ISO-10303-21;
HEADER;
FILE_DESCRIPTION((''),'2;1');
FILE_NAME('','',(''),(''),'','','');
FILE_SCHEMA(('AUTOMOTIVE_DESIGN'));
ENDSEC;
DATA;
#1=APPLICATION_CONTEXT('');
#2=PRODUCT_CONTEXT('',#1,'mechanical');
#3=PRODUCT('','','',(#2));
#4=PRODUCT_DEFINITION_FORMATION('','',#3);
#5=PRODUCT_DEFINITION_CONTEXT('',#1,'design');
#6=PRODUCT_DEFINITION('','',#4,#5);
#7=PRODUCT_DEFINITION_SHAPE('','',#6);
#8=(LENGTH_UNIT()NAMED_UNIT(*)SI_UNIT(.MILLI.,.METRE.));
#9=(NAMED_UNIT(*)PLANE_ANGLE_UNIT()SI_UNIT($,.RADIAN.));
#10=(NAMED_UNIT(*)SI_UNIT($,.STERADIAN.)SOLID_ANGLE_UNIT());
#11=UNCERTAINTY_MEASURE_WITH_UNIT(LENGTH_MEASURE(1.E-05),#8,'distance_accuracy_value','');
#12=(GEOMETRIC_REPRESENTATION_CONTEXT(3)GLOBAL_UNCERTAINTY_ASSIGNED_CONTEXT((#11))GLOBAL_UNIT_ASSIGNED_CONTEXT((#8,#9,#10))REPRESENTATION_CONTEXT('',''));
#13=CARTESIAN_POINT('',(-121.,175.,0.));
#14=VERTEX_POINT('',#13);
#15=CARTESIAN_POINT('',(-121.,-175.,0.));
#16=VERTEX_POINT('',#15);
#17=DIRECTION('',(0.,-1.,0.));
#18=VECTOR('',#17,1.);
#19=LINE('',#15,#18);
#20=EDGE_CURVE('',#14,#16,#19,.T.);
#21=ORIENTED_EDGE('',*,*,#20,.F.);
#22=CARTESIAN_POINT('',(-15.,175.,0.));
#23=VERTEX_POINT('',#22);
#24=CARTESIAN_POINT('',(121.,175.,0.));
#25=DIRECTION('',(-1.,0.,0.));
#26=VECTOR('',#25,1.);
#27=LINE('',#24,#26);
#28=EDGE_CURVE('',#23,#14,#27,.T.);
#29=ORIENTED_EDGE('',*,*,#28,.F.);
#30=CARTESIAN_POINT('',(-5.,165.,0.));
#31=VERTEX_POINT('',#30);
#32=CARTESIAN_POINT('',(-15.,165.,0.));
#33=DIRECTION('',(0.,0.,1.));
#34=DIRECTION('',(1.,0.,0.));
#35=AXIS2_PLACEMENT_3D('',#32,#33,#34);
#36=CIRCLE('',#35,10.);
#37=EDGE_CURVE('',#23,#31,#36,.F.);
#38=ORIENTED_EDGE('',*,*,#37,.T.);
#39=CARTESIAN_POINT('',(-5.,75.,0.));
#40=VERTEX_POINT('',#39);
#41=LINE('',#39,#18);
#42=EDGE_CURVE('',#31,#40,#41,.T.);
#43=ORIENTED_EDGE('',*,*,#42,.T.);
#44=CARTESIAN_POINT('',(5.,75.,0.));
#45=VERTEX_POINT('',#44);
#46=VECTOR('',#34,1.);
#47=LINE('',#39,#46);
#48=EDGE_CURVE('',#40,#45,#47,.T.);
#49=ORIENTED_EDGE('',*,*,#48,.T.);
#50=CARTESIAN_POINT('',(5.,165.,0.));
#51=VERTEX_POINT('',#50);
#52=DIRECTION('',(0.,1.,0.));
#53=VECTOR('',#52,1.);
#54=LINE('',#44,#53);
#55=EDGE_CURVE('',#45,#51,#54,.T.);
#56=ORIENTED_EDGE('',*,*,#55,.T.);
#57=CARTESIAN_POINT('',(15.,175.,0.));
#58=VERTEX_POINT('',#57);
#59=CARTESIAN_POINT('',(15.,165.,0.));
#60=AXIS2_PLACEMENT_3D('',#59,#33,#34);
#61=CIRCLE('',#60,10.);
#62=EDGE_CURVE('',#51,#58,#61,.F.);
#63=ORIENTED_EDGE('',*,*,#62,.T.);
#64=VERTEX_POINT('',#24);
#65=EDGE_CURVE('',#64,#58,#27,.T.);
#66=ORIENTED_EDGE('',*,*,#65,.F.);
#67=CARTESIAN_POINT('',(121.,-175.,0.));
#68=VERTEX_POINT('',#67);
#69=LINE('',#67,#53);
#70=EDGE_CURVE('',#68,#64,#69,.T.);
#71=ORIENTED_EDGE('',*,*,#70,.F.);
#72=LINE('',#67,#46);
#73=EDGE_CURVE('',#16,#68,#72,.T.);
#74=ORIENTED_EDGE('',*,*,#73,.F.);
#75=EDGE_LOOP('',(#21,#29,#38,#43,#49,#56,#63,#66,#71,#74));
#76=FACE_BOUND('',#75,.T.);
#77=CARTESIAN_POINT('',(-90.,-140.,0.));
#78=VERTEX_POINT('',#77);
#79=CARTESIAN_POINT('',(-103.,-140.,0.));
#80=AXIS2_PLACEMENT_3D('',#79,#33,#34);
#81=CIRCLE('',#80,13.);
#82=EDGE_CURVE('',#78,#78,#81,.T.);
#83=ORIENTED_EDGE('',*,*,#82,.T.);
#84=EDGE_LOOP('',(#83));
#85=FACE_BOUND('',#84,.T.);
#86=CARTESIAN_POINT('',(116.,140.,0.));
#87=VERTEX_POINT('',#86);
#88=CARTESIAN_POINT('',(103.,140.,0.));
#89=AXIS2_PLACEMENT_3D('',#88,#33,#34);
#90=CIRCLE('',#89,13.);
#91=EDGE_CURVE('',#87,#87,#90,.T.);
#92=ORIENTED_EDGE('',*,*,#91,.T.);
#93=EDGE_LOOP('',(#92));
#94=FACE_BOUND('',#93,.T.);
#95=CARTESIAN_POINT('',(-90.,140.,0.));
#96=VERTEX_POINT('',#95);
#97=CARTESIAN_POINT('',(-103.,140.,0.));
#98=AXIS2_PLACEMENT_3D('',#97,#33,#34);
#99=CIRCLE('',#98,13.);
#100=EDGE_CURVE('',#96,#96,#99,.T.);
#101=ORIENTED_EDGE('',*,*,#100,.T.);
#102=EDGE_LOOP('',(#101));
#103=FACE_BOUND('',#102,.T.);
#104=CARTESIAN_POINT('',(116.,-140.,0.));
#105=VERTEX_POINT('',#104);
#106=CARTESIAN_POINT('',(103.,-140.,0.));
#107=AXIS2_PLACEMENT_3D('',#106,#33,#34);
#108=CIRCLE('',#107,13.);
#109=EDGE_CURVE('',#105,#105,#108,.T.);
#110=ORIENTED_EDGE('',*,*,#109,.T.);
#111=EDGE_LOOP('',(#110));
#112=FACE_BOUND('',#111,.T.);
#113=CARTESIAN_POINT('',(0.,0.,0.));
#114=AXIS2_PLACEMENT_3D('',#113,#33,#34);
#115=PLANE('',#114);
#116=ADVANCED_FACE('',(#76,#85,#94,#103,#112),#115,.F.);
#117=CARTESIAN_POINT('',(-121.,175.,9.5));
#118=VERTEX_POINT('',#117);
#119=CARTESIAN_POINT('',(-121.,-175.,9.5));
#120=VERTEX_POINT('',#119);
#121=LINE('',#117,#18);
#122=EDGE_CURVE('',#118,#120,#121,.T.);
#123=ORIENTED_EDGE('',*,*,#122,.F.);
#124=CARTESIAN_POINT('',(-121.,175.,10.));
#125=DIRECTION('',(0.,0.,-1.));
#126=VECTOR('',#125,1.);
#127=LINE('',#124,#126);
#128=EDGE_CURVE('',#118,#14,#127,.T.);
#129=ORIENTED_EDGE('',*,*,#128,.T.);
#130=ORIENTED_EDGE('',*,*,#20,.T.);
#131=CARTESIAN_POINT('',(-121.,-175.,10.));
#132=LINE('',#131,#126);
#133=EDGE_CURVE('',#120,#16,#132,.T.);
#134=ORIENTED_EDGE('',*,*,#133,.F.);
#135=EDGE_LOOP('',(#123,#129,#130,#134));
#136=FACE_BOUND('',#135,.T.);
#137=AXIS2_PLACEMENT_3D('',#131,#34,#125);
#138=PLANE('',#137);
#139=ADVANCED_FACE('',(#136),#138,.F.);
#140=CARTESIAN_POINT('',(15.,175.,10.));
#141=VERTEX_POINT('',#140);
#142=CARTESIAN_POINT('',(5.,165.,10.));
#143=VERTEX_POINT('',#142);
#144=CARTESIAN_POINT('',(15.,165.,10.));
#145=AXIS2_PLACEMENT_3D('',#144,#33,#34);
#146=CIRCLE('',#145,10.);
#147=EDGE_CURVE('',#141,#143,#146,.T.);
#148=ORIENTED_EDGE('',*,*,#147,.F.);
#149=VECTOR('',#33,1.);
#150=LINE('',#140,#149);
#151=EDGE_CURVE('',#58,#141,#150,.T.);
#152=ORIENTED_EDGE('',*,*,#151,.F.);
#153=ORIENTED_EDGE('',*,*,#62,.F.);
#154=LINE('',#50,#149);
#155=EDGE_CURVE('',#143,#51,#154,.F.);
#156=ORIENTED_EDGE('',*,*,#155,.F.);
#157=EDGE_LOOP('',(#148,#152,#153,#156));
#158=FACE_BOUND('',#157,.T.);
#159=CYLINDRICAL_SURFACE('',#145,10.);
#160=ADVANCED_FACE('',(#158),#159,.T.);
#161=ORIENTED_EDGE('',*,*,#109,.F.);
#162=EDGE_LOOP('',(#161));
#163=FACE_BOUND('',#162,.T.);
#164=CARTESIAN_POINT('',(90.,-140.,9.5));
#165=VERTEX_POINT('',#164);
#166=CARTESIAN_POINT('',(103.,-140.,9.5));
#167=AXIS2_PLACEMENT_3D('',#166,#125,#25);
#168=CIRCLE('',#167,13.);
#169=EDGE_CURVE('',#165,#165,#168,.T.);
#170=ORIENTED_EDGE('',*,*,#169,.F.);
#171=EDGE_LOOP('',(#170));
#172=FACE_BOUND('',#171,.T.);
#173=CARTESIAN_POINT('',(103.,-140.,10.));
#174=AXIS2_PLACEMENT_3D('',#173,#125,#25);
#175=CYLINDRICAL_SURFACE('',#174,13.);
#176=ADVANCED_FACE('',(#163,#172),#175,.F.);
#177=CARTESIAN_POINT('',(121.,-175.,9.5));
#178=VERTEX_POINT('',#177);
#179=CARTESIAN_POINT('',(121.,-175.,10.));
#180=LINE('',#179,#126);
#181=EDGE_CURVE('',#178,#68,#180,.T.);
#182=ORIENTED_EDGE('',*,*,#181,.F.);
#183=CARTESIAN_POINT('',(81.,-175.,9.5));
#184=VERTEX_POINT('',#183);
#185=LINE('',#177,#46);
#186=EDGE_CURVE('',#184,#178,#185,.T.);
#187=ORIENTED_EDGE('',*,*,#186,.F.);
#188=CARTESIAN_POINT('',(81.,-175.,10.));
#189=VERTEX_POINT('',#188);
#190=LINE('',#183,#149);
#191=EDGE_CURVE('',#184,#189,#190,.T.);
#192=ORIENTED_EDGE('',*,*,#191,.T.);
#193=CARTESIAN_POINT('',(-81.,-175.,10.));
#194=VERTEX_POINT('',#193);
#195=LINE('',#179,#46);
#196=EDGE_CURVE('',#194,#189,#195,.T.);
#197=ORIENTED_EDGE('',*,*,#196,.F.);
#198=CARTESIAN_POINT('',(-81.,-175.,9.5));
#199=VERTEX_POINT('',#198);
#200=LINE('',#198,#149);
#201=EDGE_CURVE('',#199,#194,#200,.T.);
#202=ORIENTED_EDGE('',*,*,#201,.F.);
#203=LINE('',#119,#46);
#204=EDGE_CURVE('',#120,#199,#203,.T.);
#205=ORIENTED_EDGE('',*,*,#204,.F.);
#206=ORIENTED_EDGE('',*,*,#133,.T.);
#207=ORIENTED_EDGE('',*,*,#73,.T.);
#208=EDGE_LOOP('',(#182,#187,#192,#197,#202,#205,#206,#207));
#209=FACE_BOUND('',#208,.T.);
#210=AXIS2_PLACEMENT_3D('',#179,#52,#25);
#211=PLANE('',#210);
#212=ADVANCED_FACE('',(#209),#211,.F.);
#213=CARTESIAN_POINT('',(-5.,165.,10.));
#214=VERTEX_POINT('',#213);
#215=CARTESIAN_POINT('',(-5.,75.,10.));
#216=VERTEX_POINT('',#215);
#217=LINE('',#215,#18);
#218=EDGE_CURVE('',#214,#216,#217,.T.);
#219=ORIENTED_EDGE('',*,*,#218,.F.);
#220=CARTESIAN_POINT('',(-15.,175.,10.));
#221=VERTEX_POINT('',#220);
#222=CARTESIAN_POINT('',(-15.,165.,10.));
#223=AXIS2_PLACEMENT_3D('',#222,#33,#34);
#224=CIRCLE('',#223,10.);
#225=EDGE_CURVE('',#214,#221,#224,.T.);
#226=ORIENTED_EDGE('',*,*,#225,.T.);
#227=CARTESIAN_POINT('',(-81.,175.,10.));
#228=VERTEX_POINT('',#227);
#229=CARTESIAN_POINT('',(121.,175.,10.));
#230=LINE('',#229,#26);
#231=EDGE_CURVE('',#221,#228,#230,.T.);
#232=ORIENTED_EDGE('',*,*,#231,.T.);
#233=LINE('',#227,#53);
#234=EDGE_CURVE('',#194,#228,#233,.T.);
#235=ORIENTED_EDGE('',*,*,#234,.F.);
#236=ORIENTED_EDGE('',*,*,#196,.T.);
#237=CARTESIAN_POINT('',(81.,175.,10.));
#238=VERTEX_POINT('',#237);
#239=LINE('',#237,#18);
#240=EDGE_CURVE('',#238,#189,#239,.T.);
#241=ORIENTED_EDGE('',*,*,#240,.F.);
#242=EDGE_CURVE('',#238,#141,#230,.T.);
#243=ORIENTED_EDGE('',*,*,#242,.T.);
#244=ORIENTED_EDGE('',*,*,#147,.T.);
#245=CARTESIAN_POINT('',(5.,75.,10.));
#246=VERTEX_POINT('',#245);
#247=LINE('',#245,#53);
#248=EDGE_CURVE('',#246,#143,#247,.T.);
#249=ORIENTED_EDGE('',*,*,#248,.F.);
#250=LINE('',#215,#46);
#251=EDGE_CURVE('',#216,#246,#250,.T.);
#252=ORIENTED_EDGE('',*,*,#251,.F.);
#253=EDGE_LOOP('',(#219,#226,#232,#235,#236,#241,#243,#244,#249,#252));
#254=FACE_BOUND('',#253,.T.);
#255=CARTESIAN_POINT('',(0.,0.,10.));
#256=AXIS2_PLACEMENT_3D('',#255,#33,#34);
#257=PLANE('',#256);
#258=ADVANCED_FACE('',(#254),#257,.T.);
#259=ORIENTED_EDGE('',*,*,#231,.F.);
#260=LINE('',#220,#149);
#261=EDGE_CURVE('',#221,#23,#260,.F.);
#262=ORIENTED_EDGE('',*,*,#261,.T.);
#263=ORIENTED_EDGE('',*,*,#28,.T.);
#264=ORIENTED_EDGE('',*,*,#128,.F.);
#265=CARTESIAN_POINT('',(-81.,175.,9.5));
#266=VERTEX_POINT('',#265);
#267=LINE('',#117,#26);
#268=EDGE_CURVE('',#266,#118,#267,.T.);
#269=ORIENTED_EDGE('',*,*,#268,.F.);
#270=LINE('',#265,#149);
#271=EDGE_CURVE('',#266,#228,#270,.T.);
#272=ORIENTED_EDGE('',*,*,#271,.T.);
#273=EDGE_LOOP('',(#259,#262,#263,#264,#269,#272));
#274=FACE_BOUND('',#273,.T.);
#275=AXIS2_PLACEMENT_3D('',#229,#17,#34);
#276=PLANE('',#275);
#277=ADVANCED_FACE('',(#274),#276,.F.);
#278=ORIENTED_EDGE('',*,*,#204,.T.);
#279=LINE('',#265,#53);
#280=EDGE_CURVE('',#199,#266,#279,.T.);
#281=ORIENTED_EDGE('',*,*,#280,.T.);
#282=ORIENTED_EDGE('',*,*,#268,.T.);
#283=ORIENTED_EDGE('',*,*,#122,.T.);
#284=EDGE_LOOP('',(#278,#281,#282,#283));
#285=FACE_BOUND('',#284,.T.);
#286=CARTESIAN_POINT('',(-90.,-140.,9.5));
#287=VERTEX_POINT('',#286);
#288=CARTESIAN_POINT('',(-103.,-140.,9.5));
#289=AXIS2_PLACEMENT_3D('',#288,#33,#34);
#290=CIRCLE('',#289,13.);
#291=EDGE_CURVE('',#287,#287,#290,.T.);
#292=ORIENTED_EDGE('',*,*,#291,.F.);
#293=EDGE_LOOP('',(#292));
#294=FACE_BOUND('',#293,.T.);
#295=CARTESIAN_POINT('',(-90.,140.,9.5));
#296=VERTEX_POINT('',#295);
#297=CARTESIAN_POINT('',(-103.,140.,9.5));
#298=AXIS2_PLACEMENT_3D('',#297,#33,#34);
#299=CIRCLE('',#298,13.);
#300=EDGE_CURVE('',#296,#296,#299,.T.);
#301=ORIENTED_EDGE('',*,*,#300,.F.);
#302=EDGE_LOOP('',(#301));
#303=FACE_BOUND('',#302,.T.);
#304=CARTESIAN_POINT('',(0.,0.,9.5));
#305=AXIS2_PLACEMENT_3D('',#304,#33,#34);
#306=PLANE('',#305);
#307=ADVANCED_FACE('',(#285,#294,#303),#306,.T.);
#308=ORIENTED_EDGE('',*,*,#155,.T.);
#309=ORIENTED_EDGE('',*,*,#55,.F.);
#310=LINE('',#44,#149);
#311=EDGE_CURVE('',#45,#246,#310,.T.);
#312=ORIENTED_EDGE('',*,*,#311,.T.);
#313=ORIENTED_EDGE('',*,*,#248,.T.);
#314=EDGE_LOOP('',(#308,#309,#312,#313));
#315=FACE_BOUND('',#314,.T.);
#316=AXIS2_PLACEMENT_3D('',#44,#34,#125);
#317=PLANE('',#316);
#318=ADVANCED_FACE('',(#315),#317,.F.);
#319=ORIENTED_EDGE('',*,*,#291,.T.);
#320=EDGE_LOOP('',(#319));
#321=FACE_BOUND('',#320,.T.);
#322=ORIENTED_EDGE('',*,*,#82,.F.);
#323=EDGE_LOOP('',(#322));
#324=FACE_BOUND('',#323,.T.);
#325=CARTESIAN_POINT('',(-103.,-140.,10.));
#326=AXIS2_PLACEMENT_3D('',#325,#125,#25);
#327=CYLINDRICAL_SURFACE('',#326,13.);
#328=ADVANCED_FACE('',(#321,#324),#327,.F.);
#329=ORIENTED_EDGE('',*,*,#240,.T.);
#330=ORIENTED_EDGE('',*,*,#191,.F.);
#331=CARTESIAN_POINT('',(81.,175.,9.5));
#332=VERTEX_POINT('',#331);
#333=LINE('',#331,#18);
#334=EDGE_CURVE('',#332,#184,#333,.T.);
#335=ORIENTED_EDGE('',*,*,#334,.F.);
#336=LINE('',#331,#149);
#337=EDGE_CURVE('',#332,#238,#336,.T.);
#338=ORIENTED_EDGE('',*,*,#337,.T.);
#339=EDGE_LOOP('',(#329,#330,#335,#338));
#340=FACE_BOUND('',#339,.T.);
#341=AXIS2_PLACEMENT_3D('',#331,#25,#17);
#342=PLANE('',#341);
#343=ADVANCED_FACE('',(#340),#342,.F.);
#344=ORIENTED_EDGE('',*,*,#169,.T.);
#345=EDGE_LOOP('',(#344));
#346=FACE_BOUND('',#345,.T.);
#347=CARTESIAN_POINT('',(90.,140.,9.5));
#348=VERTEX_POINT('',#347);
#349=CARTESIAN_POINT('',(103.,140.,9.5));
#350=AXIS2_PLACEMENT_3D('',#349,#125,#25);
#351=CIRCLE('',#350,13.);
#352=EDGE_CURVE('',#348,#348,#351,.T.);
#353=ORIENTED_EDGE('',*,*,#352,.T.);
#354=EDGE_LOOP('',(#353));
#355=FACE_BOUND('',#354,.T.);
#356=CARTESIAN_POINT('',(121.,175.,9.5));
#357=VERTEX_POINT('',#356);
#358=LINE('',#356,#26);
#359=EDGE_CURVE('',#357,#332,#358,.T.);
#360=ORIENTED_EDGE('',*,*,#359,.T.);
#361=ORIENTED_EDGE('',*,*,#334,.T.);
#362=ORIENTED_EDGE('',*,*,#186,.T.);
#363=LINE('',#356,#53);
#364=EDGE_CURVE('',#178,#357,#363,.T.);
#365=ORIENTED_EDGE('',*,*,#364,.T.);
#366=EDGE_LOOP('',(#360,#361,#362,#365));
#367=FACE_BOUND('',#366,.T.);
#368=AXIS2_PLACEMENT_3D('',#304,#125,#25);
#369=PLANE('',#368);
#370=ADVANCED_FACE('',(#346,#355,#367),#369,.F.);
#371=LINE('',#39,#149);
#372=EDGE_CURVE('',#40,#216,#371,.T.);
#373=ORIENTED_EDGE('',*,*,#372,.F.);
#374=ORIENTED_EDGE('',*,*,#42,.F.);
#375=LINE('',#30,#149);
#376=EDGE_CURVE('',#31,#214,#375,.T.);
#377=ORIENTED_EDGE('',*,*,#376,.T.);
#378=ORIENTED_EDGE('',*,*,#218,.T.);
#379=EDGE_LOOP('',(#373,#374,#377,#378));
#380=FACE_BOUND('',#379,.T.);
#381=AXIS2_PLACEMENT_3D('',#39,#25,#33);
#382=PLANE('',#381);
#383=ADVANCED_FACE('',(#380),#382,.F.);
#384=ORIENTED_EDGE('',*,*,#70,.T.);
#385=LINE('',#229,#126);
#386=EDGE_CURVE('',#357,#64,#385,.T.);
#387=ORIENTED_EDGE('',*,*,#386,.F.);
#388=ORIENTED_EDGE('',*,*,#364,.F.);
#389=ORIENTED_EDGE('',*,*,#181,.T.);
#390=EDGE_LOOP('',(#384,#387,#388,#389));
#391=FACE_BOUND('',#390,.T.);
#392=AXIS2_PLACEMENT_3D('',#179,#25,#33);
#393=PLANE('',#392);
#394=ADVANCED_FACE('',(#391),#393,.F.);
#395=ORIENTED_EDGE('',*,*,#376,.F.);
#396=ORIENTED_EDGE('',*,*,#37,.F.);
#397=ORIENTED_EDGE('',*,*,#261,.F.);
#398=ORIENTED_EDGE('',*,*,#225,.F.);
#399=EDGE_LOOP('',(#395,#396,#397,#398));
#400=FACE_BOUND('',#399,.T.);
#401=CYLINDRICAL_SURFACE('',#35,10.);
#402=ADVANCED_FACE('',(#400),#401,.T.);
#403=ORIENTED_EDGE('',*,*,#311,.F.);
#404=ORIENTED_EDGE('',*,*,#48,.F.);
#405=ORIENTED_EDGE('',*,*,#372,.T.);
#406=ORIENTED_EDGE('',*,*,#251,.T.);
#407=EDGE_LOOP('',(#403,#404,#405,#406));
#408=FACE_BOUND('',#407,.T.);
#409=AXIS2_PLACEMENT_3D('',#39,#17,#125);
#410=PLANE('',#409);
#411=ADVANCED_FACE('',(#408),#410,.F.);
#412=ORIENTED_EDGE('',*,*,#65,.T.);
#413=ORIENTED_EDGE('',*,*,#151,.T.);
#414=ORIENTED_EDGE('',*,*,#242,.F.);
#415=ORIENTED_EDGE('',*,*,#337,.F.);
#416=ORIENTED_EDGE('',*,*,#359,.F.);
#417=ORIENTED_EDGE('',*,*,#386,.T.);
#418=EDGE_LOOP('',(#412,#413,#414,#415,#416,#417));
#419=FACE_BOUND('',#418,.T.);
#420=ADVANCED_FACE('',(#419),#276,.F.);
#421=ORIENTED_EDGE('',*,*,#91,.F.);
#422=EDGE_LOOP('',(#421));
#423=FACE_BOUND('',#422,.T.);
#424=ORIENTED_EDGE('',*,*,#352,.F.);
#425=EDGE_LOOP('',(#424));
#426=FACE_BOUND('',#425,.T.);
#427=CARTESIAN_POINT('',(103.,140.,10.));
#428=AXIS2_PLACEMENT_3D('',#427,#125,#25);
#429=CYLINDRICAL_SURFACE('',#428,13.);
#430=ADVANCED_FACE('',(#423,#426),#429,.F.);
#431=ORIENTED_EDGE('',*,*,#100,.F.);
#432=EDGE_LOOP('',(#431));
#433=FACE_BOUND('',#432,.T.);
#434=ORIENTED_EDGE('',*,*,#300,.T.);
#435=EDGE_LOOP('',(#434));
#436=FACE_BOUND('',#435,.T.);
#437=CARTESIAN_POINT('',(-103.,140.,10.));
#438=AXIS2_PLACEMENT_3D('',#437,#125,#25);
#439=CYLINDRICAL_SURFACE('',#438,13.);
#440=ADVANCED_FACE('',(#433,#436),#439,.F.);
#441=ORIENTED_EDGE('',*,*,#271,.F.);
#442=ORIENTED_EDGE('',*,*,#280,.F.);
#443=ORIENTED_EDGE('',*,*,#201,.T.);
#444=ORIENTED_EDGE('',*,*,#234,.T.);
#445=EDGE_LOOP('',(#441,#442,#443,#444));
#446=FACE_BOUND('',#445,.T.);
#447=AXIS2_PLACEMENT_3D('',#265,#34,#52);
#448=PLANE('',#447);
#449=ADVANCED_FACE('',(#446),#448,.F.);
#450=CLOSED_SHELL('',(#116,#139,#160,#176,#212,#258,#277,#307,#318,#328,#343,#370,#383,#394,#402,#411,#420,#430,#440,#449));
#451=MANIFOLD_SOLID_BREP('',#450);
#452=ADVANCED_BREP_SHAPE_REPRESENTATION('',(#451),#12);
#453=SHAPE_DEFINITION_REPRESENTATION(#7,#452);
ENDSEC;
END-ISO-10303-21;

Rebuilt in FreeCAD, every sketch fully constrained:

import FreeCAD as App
import Part
import Sketcher

V = App.Vector


def edges_at(feature, points):
    """Names of the edges that pass closest to the given points."""
    edges = feature.Shape.Edges
    near = lambda p: min(range(len(edges)), key=lambda i: edges[i].distToShape(Part.Vertex(*p))[0])
    return sorted({f"Edge{near(p) + 1}" for p in points})


def add_polygon(sketch, points):
    """Adds a closed chain of lines whose ends are joined by coincident constraints."""
    first, n = sketch.GeometryCount, len(points)
    for a, b in zip(points, points[1:] + points[:1]):
        sketch.addGeometry(Part.LineSegment(App.Vector(*a, 0), App.Vector(*b, 0)), False)
    for i in range(n):
        sketch.addConstraint(Sketcher.Constraint("Coincident", first + i, 2, first + (i + 1) % n, 1))

doc = App.newDocument("Part")
body = doc.addObject("PartDesign::Body", "Body")

sketch1 = body.newObject("Sketcher::SketchObject", "Sketch")
sketch1.AttachmentSupport = (doc.getObject("XY_Plane"), [""])
sketch1.MapMode = "FlatFace"
add_polygon(sketch1, [(-121, 175), (-121, -175), (121, -175), (121, 175)])
sketch1.addGeometry(Part.Circle(V(-103, -140, 0), V(0, 0, 1), 13), False)
sketch1.addGeometry(Part.Circle(V(103, -140, 0), V(0, 0, 1), 13), False)
sketch1.addGeometry(Part.Circle(V(-103, 140, 0), V(0, 0, 1), 13), False)
sketch1.addGeometry(Part.Circle(V(103, 140, 0), V(0, 0, 1), 13), False)
sketch1.addConstraint([
    Sketcher.Constraint("Vertical", 0),
    Sketcher.Constraint("Horizontal", 1),
    Sketcher.Constraint("Vertical", 2),
    Sketcher.Constraint("Horizontal", 3),
    Sketcher.Constraint("Equal", 4, 5),
    Sketcher.Constraint("Equal", 5, 6),
    Sketcher.Constraint("Equal", 6, 7),
    Sketcher.Constraint("Symmetric", 5, 3, 6, 3, -1, 1),
    Sketcher.Constraint("Symmetric", 4, 3, 7, 3, -1, 1),
    Sketcher.Constraint("Symmetric", 0, 2, 2, 2, -1, 1),
    Sketcher.Constraint("Symmetric", 4, 3, 5, 3, -2),
    Sketcher.Constraint("Diameter", 4, 26.0),
    Sketcher.Constraint("DistanceX", 1, 1, 1, 2, 242.0),
    Sketcher.Constraint("DistanceY", 0, 2, 0, 1, 350.0),
    Sketcher.Constraint("DistanceX", 4, 3, -1, 1, 103.0),
    Sketcher.Constraint("DistanceY", 4, 3, -1, 1, 140.0),
])
pad1 = body.newObject("PartDesign::Pad", "Pad")
pad1.Profile = sketch1
pad1.Length = 10

sketch2 = body.newObject("Sketcher::SketchObject", "Sketch001")
sketch2.AttachmentSupport = (doc.getObject("XY_Plane"), [""])
sketch2.MapMode = "FlatFace"
sketch2.AttachmentOffset = App.Placement(V(0, 0, 10), App.Rotation())
add_polygon(sketch2, [(-121, 175), (-121, -175), (-81, -175), (-81, 175)])
add_polygon(sketch2, [(81, 175), (81, -175), (121, -175), (121, 175)])
sketch2.addConstraint([
    Sketcher.Constraint("Vertical", 0),
    Sketcher.Constraint("Horizontal", 1),
    Sketcher.Constraint("Vertical", 2),
    Sketcher.Constraint("Horizontal", 3),
    Sketcher.Constraint("Vertical", 4),
    Sketcher.Constraint("Horizontal", 5),
    Sketcher.Constraint("Vertical", 6),
    Sketcher.Constraint("Horizontal", 7),
    Sketcher.Constraint("Symmetric", 2, 2, 4, 2, -1, 1),
    Sketcher.Constraint("Symmetric", 0, 2, 6, 2, -1, 1),
    Sketcher.Constraint("Horizontal", 1, 2, 4, 2),
    Sketcher.Constraint("DistanceX", 1, 1, 1, 2, 40.0),
    Sketcher.Constraint("DistanceY", 0, 2, 0, 1, 350.0),
    Sketcher.Constraint("DistanceX", 0, 2, -1, 1, 121.0),
])
pocket1 = body.newObject("PartDesign::Pocket", "Pocket")
pocket1.Profile = sketch2
pocket1.Length = 0.5

sketch3 = body.newObject("Sketcher::SketchObject", "Sketch002")
sketch3.AttachmentSupport = (doc.getObject("XY_Plane"), [""])
sketch3.MapMode = "FlatFace"
sketch3.AttachmentOffset = App.Placement(V(0, 0, 10), App.Rotation())
add_polygon(sketch3, [(-5, 175), (-5, 75), (5, 75), (5, 175)])
sketch3.addConstraint([
    Sketcher.Constraint("Vertical", 0),
    Sketcher.Constraint("Horizontal", 1),
    Sketcher.Constraint("Vertical", 2),
    Sketcher.Constraint("Horizontal", 3),
    Sketcher.Constraint("DistanceX", 1, 1, 1, 2, 10.0),
    Sketcher.Constraint("DistanceY", 0, 2, 0, 1, 100.0),
    Sketcher.Constraint("DistanceX", 0, 2, -1, 1, 5.0),
    Sketcher.Constraint("DistanceY", -1, 1, 0, 2, 75.0),
])
pocket2 = body.newObject("PartDesign::Pocket", "Pocket001")
pocket2.Profile = sketch3
pocket2.Type = "ThroughAll"
doc.recompute()

fillet = body.newObject("PartDesign::Fillet", "Fillet")
fillet.Base = (pocket2, edges_at(pocket2, [(5, 175, 5), (-5, 175, 5)]))
fillet.Radius = 10

doc.recompute()
